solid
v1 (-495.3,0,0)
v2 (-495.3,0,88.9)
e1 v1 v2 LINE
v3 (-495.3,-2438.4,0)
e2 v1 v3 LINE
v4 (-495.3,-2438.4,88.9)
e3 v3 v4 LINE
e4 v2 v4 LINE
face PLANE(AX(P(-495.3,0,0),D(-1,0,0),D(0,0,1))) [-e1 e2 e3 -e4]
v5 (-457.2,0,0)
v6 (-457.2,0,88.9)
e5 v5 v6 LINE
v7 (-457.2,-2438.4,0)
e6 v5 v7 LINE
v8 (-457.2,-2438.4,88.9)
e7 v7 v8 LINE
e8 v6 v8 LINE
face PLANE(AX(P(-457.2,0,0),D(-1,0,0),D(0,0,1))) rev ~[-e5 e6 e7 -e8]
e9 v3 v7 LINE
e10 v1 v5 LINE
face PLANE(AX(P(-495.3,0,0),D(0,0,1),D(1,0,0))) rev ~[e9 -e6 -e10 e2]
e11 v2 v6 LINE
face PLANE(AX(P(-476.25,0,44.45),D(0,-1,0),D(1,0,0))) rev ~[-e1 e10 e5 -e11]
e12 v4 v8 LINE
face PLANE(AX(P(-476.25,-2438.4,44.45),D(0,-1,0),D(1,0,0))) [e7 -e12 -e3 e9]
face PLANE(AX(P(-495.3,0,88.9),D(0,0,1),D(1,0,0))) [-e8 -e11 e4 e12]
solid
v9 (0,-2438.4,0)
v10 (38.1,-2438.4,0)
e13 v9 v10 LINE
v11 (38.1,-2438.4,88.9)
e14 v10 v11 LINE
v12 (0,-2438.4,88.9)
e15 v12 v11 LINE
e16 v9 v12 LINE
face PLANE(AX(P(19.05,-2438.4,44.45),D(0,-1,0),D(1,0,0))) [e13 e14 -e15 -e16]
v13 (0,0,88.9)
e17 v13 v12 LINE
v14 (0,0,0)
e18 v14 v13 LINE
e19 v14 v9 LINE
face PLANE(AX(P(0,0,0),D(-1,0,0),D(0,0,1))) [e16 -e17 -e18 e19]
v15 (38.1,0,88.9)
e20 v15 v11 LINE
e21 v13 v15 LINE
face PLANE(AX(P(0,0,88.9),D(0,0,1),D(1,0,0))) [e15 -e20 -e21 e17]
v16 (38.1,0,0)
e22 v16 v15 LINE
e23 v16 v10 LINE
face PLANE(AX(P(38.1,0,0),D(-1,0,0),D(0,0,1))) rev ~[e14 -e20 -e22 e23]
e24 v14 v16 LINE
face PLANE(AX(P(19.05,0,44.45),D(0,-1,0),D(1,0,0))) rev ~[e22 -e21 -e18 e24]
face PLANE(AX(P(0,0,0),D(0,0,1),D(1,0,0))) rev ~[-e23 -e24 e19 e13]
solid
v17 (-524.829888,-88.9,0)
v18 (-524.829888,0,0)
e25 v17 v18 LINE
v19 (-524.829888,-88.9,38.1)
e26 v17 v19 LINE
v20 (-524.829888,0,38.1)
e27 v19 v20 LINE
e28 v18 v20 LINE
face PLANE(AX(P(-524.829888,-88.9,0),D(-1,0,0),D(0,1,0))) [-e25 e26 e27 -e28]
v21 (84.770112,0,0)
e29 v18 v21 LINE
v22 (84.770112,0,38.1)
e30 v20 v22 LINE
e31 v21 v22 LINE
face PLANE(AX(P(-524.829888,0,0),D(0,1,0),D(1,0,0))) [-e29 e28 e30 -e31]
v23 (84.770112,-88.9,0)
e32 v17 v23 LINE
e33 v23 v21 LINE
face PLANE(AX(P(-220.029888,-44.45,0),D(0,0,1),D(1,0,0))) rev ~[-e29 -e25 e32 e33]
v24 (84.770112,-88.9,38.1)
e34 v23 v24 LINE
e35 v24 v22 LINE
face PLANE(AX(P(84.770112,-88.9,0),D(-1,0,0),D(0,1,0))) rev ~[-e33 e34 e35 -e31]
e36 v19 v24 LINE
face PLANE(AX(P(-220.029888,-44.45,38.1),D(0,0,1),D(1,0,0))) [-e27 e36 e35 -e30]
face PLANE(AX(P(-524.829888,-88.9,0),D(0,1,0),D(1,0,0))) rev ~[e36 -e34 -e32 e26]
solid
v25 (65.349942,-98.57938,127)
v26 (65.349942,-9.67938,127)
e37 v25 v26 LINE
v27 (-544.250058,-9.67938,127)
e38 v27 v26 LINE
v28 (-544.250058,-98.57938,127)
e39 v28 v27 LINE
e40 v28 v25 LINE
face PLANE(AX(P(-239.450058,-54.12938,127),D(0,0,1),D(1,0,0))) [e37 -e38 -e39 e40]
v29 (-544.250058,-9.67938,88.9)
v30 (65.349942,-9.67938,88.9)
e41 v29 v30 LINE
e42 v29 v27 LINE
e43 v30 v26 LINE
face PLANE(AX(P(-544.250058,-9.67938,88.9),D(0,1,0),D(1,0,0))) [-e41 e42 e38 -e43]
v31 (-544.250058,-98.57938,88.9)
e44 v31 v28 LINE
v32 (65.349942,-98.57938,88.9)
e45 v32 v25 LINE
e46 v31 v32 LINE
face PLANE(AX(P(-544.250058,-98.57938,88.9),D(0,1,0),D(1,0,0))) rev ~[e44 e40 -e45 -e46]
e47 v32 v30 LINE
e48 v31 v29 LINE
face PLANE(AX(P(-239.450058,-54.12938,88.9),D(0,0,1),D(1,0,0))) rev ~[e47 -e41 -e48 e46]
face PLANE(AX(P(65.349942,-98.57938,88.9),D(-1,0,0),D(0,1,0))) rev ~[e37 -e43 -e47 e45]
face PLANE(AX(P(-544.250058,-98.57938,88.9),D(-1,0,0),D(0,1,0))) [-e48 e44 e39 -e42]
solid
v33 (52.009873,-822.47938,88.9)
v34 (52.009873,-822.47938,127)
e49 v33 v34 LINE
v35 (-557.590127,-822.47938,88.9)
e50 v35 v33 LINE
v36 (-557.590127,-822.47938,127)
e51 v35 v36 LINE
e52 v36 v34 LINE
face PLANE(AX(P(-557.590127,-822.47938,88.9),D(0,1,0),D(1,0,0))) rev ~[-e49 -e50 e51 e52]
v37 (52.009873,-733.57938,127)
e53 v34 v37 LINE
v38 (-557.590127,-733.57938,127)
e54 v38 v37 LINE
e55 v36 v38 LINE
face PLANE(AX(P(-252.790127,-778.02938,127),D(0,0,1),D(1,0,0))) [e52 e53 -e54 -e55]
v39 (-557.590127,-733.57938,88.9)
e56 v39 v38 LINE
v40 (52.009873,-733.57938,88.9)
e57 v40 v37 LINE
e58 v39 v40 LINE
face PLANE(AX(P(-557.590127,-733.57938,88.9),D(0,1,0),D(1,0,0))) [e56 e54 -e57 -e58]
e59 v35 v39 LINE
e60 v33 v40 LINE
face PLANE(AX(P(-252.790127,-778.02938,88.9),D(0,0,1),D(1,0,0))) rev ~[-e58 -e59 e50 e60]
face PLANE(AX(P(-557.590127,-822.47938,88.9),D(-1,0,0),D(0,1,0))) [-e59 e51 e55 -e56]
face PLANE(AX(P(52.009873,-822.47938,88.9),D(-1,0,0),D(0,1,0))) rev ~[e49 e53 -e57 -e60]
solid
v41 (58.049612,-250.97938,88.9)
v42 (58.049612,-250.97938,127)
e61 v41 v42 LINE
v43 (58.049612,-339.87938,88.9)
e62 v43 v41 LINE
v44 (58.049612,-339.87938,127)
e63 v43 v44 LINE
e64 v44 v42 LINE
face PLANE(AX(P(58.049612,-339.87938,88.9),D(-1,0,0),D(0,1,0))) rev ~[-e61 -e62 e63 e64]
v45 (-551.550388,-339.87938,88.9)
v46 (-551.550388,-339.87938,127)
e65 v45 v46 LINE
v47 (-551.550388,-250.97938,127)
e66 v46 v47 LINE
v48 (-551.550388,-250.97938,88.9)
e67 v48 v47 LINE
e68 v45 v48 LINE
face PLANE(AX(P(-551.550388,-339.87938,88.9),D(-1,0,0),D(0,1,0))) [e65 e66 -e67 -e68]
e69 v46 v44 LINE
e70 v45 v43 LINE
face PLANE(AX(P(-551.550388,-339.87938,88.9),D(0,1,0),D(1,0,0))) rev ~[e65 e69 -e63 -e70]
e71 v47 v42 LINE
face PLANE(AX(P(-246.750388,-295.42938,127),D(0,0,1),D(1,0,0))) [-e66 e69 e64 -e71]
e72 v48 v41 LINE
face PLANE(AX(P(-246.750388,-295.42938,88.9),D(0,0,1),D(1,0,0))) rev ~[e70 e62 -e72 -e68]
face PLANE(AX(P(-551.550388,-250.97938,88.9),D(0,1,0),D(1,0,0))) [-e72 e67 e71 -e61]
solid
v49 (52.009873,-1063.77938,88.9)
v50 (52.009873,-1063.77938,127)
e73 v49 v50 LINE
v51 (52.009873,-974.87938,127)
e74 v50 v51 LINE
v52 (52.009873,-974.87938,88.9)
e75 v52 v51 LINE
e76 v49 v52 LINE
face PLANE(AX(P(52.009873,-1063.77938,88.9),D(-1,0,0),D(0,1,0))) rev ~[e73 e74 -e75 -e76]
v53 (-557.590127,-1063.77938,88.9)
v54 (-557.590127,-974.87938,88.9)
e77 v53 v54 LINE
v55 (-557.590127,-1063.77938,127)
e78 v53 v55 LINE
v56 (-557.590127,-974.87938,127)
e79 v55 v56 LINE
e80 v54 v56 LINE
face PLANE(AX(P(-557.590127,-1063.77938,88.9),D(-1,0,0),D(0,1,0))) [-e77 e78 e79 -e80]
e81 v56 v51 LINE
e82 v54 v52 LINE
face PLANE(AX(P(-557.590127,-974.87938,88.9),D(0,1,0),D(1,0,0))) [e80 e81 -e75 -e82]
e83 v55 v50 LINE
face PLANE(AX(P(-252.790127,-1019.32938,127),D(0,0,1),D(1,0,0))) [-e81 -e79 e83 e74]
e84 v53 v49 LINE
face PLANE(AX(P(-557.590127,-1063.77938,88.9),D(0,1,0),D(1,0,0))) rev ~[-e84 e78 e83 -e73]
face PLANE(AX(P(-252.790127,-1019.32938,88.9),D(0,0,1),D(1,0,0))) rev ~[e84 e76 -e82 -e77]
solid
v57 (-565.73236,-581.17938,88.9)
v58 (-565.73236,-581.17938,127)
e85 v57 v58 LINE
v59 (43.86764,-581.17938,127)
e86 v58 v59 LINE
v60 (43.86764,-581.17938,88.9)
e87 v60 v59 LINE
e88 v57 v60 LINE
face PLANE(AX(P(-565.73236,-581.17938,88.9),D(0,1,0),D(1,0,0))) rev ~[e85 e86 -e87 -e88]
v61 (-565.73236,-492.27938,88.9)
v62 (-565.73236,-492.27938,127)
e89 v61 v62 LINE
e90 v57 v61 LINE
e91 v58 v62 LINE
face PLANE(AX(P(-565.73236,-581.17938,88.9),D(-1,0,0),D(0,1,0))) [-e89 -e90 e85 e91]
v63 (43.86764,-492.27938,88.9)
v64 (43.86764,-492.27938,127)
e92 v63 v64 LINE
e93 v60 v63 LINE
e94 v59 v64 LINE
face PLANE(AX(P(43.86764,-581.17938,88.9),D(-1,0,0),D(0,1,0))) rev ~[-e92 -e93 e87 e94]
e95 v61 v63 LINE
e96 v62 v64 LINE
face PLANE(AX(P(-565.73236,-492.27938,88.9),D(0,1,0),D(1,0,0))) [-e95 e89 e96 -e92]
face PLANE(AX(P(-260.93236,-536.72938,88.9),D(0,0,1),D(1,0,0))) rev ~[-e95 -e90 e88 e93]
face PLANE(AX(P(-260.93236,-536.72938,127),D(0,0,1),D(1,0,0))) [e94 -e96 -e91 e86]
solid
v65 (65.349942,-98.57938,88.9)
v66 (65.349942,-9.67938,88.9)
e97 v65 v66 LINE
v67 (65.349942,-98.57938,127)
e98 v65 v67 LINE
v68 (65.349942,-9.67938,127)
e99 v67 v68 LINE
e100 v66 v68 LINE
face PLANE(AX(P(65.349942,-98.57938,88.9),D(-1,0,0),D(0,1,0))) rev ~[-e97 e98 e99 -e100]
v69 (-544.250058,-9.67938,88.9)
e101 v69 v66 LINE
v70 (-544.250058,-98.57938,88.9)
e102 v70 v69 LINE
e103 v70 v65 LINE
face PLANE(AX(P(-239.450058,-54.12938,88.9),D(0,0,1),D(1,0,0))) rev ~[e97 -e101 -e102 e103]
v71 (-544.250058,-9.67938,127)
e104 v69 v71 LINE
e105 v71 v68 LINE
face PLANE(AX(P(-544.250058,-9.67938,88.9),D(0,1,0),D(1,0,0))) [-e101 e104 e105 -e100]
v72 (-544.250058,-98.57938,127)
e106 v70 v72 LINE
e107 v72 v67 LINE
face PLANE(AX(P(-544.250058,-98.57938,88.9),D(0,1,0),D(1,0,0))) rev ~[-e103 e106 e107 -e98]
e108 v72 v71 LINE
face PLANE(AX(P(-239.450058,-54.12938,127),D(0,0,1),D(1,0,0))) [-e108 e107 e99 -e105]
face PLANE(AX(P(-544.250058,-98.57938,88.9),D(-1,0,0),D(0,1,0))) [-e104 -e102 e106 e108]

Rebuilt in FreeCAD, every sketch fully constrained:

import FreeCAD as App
import Part
import Sketcher

V = App.Vector
Q = App.Units.Quantity


def add_polygon(sketch, points):
    """Adds a closed chain of lines whose ends are joined by coincident constraints."""
    first, n = sketch.GeometryCount, len(points)
    for a, b in zip(points, points[1:] + points[:1]):
        sketch.addGeometry(Part.LineSegment(App.Vector(*a, 0), App.Vector(*b, 0)), False)
    for i in range(n):
        sketch.addConstraint(Sketcher.Constraint("Coincident", first + i, 2, first + (i + 1) % n, 1))

doc = App.newDocument("Part")
body = doc.addObject("PartDesign::Body", "Body")

# Sketch on XZ plane
sketch1 = body.newObject("Sketcher::SketchObject", "Sketch")
sketch1.AttachmentSupport = (doc.getObject("XZ_Plane"), [""])
sketch1.MapMode = "FlatFace"
add_polygon(sketch1, [(-495, 89), (-495, 0), (-457, 0), (-457, 89)])  # lines 0-3
sketch1.addConstraint(Sketcher.Constraint("Vertical", 0))
sketch1.addConstraint(Sketcher.Constraint("Horizontal", 1))
sketch1.addConstraint(Sketcher.Constraint("Vertical", 2))
sketch1.addConstraint(Sketcher.Constraint("Horizontal", 3))
sketch1.addConstraint(Sketcher.Constraint("PointOnObject", 0, 2, -1))
sketch1.addConstraint(Sketcher.Constraint("DistanceX", 1, 1, 1, 2, Q("1.5 in")))
sketch1.addConstraint(Sketcher.Constraint("DistanceY", 0, 2, 0, 1, Q("3.5 in")))
sketch1.addConstraint(Sketcher.Constraint("DistanceX", 1, 2, -1, 1, Q("18 in")))
pad1 = body.newObject("PartDesign::Pad", "Pad")
pad1.Profile = sketch1
pad1.Length = Q("96 in")
body2 = doc.addObject("PartDesign::Body", "Body001")

# Sketch on XZ plane
sketch2 = body2.newObject("Sketcher::SketchObject", "Sketch001")
sketch2.AttachmentSupport = (doc.getObject("XZ_Plane001"), [""])
sketch2.MapMode = "FlatFace"
add_polygon(sketch2, [(0, 89), (0, 0), (38, 0), (38, 89)])  # lines 0-3
sketch2.addConstraint(Sketcher.Constraint("Vertical", 0))
sketch2.addConstraint(Sketcher.Constraint("Horizontal", 1))
sketch2.addConstraint(Sketcher.Constraint("Vertical", 2))
sketch2.addConstraint(Sketcher.Constraint("Horizontal", 3))
sketch2.addConstraint(Sketcher.Constraint("Coincident", 0, 2, -1, 1))
sketch2.addConstraint(Sketcher.Constraint("DistanceX", 1, 1, 1, 2, Q("1.5 in")))
sketch2.addConstraint(Sketcher.Constraint("DistanceY", 0, 2, 0, 1, Q("3.5 in")))
pad2 = body2.newObject("PartDesign::Pad", "Pad001")
pad2.Profile = sketch2
pad2.Length = Q("96 in")
body3 = doc.addObject("PartDesign::Body", "Body002")

# Sketch on XY plane
sketch3 = body3.newObject("Sketcher::SketchObject", "Sketch002")
sketch3.AttachmentSupport = (doc.getObject("XY_Plane002"), [""])
sketch3.MapMode = "FlatFace"
add_polygon(sketch3, [(-525, 0), (-525, -89), (85, -89), (85, 0)])  # lines 0-3
sketch3.addConstraint(Sketcher.Constraint("Vertical", 0))
sketch3.addConstraint(Sketcher.Constraint("Horizontal", 1))
sketch3.addConstraint(Sketcher.Constraint("Vertical", 2))
sketch3.addConstraint(Sketcher.Constraint("Horizontal", 3))
sketch3.addConstraint(Sketcher.Constraint("PointOnObject", 2, 2, -1))
sketch3.addConstraint(Sketcher.Constraint("DistanceX", 1, 1, 1, 2, Q("24 in")))
sketch3.addConstraint(Sketcher.Constraint("DistanceY", 0, 2, 0, 1, Q("3.5 in")))
sketch3.addConstraint(Sketcher.Constraint("DistanceX", 0, 2, -1, 1, 524.829888))
pad3 = body3.newObject("PartDesign::Pad", "Pad002")
pad3.Profile = sketch3
pad3.Length = Q("1.5 in")
body4 = doc.addObject("PartDesign::Body", "Body003")

# Sketch on XY plane
sketch4 = body4.newObject("Sketcher::SketchObject", "Sketch003")
sketch4.AttachmentSupport = (doc.getObject("XY_Plane003"), [""])
sketch4.MapMode = "FlatFace"
sketch4.AttachmentOffset = App.Placement(V(0, 0, 3.5 * 25.4), App.Rotation())
add_polygon(sketch4, [(-544, -10), (-544, -99), (65, -99), (65, -10)])  # lines 0-3
sketch4.addConstraint(Sketcher.Constraint("Vertical", 0))
sketch4.addConstraint(Sketcher.Constraint("Horizontal", 1))
sketch4.addConstraint(Sketcher.Constraint("Vertical", 2))
sketch4.addConstraint(Sketcher.Constraint("Horizontal", 3))
sketch4.addConstraint(Sketcher.Constraint("DistanceX", 1, 1, 1, 2, Q("24 in")))
sketch4.addConstraint(Sketcher.Constraint("DistanceY", 0, 2, 0, 1, Q("3.5 in")))
sketch4.addConstraint(Sketcher.Constraint("DistanceY", 0, 2, -1, 1, 98.57938))
sketch4.addConstraint(Sketcher.Constraint("DistanceX", 0, 2, -1, 1, 544.250058))
pad4 = body4.newObject("PartDesign::Pad", "Pad003")
pad4.Profile = sketch4
pad4.Length = Q("1.5 in")
body5 = doc.addObject("PartDesign::Body", "Body004")

# Sketch on XY plane
sketch5 = body5.newObject("Sketcher::SketchObject", "Sketch004")
sketch5.AttachmentSupport = (doc.getObject("XY_Plane004"), [""])
sketch5.MapMode = "FlatFace"
sketch5.AttachmentOffset = App.Placement(V(0, 0, 3.5 * 25.4), App.Rotation())
add_polygon(sketch5, [(-544, -10), (-544, -99), (65, -99), (65, -10)])  # lines 0-3
sketch5.addConstraint(Sketcher.Constraint("Vertical", 0))
sketch5.addConstraint(Sketcher.Constraint("Horizontal", 1))
sketch5.addConstraint(Sketcher.Constraint("Vertical", 2))
sketch5.addConstraint(Sketcher.Constraint("Horizontal", 3))
sketch5.addConstraint(Sketcher.Constraint("DistanceX", 1, 1, 1, 2, Q("24 in")))
sketch5.addConstraint(Sketcher.Constraint("DistanceY", 0, 2, 0, 1, Q("3.5 in")))
sketch5.addConstraint(Sketcher.Constraint("DistanceY", 0, 2, -1, 1, 98.57938))
sketch5.addConstraint(Sketcher.Constraint("DistanceX", 0, 2, -1, 1, 544.250058))
pad5 = body5.newObject("PartDesign::Pad", "Pad004")
pad5.Profile = sketch5
pad5.Length = Q("1.5 in")
body6 = doc.addObject("PartDesign::Body", "Body005")

# Sketch on XY plane
sketch6 = body6.newObject("Sketcher::SketchObject", "Sketch005")
sketch6.AttachmentSupport = (doc.getObject("XY_Plane005"), [""])
sketch6.MapMode = "FlatFace"
sketch6.AttachmentOffset = App.Placement(V(0, 0, 3.5 * 25.4), App.Rotation())
add_polygon(sketch6, [(-552, -251), (-552, -340), (58, -340), (58, -251)])  # lines 0-3
sketch6.addConstraint(Sketcher.Constraint("Vertical", 0))
sketch6.addConstraint(Sketcher.Constraint("Horizontal", 1))
sketch6.addConstraint(Sketcher.Constraint("Vertical", 2))
sketch6.addConstraint(Sketcher.Constraint("Horizontal", 3))
sketch6.addConstraint(Sketcher.Constraint("DistanceX", 1, 1, 1, 2, Q("24 in")))
sketch6.addConstraint(Sketcher.Constraint("DistanceY", 0, 2, 0, 1, Q("3.5 in")))
sketch6.addConstraint(Sketcher.Constraint("DistanceX", 0, 2, -1, 1, 551.550388))
sketch6.addConstraint(Sketcher.Constraint("DistanceY", 0, 2, -1, 1, 339.87938))
pad6 = body6.newObject("PartDesign::Pad", "Pad005")
pad6.Profile = sketch6
pad6.Length = Q("1.5 in")
body7 = doc.addObject("PartDesign::Body", "Body006")

# Sketch on XY plane
sketch7 = body7.newObject("Sketcher::SketchObject", "Sketch006")
sketch7.AttachmentSupport = (doc.getObject("XY_Plane006"), [""])
sketch7.MapMode = "FlatFace"
sketch7.AttachmentOffset = App.Placement(V(0, 0, 3.5 * 25.4), App.Rotation())
add_polygon(sketch7, [(-566, -492), (-566, -581), (44, -581), (44, -492)])  # lines 0-3
sketch7.addConstraint(Sketcher.Constraint("Vertical", 0))
sketch7.addConstraint(Sketcher.Constraint("Horizontal", 1))
sketch7.addConstraint(Sketcher.Constraint("Vertical", 2))
sketch7.addConstraint(Sketcher.Constraint("Horizontal", 3))
sketch7.addConstraint(Sketcher.Constraint("DistanceX", 1, 1, 1, 2, Q("24 in")))
sketch7.addConstraint(Sketcher.Constraint("DistanceY", 0, 2, 0, 1, Q("3.5 in")))
sketch7.addConstraint(Sketcher.Constraint("DistanceX", 0, 2, -1, 1, 565.73236))
sketch7.addConstraint(Sketcher.Constraint("DistanceY", 0, 2, -1, 1, 581.17938))
pad7 = body7.newObject("PartDesign::Pad", "Pad006")
pad7.Profile = sketch7
pad7.Length = Q("1.5 in")
body8 = doc.addObject("PartDesign::Body", "Body007")

# Sketch on XY plane
sketch8 = body8.newObject("Sketcher::SketchObject", "Sketch007")
sketch8.AttachmentSupport = (doc.getObject("XY_Plane007"), [""])
sketch8.MapMode = "FlatFace"
sketch8.AttachmentOffset = App.Placement(V(0, 0, 3.5 * 25.4), App.Rotation())
add_polygon(sketch8, [(-558, -734), (-558, -822), (52, -822), (52, -734)])  # lines 0-3
sketch8.addConstraint(Sketcher.Constraint("Vertical", 0))
sketch8.addConstraint(Sketcher.Constraint("Horizontal", 1))
sketch8.addConstraint(Sketcher.Constraint("Vertical", 2))
sketch8.addConstraint(Sketcher.Constraint("Horizontal", 3))
sketch8.addConstraint(Sketcher.Constraint("DistanceX", 1, 1, 1, 2, Q("24 in")))
sketch8.addConstraint(Sketcher.Constraint("DistanceY", 0, 2, 0, 1, Q("3.5 in")))
sketch8.addConstraint(Sketcher.Constraint("DistanceY", 0, 2, -1, 1, 822.47938))
sketch8.addConstraint(Sketcher.Constraint("DistanceX", 0, 2, -1, 1, 557.590127))
pad8 = body8.newObject("PartDesign::Pad", "Pad007")
pad8.Profile = sketch8
pad8.Length = Q("1.5 in")
body9 = doc.addObject("PartDesign::Body", "Body008")

# Sketch on XY plane
sketch9 = body9.newObject("Sketcher::SketchObject", "Sketch008")
sketch9.AttachmentSupport = (doc.getObject("XY_Plane008"), [""])
sketch9.MapMode = "FlatFace"
sketch9.AttachmentOffset = App.Placement(V(0, 0, 3.5 * 25.4), App.Rotation())
add_polygon(sketch9, [(-558, -975), (-558, -1064), (52, -1064), (52, -975)])  # lines 0-3
sketch9.addConstraint(Sketcher.Constraint("Vertical", 0))
sketch9.addConstraint(Sketcher.Constraint("Horizontal", 1))
sketch9.addConstraint(Sketcher.Constraint("Vertical", 2))
sketch9.addConstraint(Sketcher.Constraint("Horizontal", 3))
sketch9.addConstraint(Sketcher.Constraint("DistanceX", 1, 1, 1, 2, Q("24 in")))
sketch9.addConstraint(Sketcher.Constraint("DistanceY", 0, 2, 0, 1, Q("3.5 in")))
sketch9.addConstraint(Sketcher.Constraint("DistanceY", 0, 2, -1, 1, 1063.77938))
sketch9.addConstraint(Sketcher.Constraint("DistanceX", 0, 2, -1, 1, 557.590127))
pad9 = body9.newObject("PartDesign::Pad", "Pad008")
pad9.Profile = sketch9
pad9.Length = Q("1.5 in")

doc.recompute()
